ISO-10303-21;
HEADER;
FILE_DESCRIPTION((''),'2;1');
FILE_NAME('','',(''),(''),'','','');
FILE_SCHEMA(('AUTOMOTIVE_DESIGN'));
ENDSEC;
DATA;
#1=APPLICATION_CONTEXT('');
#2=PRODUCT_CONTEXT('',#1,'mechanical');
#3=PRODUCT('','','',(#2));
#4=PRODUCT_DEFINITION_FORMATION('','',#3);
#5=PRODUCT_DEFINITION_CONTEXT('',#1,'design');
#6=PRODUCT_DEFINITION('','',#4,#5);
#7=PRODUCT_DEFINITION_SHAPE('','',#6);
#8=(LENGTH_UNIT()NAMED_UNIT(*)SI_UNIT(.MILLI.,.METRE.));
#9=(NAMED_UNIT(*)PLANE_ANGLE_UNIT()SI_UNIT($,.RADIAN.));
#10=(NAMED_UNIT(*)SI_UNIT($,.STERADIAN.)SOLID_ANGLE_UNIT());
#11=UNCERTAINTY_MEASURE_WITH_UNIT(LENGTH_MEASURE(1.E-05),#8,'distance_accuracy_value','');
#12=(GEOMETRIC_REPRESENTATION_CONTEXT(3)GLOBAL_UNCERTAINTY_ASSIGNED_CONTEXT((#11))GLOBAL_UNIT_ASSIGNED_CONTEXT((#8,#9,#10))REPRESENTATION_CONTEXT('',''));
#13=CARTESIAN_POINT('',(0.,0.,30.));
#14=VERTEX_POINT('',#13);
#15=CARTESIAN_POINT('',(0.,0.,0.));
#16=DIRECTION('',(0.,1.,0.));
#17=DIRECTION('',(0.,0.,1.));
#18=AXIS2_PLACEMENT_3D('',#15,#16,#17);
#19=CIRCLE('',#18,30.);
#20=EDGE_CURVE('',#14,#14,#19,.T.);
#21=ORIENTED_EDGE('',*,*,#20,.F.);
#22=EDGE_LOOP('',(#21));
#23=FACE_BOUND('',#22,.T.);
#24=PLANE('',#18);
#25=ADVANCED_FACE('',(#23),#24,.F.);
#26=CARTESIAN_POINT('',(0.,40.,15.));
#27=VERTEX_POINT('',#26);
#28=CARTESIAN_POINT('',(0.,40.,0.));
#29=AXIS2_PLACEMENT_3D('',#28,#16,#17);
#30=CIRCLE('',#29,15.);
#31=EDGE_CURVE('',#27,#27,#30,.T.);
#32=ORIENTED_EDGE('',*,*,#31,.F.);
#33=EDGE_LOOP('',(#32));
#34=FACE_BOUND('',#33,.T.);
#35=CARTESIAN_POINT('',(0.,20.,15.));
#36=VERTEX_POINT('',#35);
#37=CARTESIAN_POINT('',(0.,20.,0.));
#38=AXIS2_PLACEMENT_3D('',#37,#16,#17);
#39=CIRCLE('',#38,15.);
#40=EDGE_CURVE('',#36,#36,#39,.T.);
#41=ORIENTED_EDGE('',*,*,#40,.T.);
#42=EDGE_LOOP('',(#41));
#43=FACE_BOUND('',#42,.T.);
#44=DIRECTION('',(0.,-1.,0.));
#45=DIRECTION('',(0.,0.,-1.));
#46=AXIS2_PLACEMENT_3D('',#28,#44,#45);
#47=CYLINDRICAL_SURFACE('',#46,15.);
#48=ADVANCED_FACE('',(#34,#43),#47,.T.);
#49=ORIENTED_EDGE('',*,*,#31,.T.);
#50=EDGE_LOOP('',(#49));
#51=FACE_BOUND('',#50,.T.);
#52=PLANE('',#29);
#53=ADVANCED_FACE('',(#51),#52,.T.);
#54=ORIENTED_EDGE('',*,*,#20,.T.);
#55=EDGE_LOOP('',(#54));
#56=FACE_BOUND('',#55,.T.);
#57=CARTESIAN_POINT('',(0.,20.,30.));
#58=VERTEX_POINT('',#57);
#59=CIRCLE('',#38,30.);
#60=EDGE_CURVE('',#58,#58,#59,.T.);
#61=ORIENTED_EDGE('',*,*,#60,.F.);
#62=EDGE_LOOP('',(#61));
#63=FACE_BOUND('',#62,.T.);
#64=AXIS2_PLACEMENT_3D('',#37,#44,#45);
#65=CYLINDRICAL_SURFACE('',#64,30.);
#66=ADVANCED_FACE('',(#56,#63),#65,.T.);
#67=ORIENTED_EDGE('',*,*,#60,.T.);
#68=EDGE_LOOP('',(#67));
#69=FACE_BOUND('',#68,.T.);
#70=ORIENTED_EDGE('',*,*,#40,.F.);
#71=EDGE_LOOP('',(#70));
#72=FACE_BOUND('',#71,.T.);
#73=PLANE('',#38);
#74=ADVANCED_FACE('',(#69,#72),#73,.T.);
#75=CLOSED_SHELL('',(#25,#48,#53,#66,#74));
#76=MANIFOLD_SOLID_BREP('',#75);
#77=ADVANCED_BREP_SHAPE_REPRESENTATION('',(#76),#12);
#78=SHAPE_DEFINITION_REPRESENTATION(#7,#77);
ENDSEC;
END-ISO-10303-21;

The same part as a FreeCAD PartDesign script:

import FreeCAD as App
import Part
import Sketcher
from FreeCAD import Vector

doc = App.newDocument("Part")
body = doc.addObject("PartDesign::Body", "Body")

# Sketch on XZ plane
sketch1 = body.newObject("Sketcher::SketchObject", "Sketch")
sketch1.AttachmentSupport = (doc.getObject("XZ_Plane"), [""])
sketch1.MapMode = "FlatFace"
sketch1.addGeometry(Part.Circle(Vector(0, 0, 0), Vector(0, 0, 1), 30), False)
sketch1.addConstraint([
    Sketcher.Constraint("Coincident", 0, 3, -1, 1),
    Sketcher.Constraint("Diameter", 0, 60.0),
])
pad1 = body.newObject("PartDesign::Pad", "Pad")
pad1.Profile = sketch1
pad1.Length = 20
pad1.Reversed = True

# Sketch on XZ plane
sketch2 = body.newObject("Sketcher::SketchObject", "Sketch001")
sketch2.AttachmentSupport = (doc.getObject("XZ_Plane"), [""])
sketch2.MapMode = "FlatFace"
sketch2.AttachmentOffset = App.Placement(Vector(0, 0, -20), App.Rotation())
sketch2.addGeometry(Part.Circle(Vector(0, 0, 0), Vector(0, 0, 1), 15), False)
sketch2.addConstraint([
    Sketcher.Constraint("Coincident", 0, 3, -1, 1),
    Sketcher.Constraint("Diameter", 0, 30.0),
])
pad2 = body.newObject("PartDesign::Pad", "Pad001")
pad2.Profile = sketch2
pad2.Length = 20
pad2.Reversed = True

doc.recompute()
